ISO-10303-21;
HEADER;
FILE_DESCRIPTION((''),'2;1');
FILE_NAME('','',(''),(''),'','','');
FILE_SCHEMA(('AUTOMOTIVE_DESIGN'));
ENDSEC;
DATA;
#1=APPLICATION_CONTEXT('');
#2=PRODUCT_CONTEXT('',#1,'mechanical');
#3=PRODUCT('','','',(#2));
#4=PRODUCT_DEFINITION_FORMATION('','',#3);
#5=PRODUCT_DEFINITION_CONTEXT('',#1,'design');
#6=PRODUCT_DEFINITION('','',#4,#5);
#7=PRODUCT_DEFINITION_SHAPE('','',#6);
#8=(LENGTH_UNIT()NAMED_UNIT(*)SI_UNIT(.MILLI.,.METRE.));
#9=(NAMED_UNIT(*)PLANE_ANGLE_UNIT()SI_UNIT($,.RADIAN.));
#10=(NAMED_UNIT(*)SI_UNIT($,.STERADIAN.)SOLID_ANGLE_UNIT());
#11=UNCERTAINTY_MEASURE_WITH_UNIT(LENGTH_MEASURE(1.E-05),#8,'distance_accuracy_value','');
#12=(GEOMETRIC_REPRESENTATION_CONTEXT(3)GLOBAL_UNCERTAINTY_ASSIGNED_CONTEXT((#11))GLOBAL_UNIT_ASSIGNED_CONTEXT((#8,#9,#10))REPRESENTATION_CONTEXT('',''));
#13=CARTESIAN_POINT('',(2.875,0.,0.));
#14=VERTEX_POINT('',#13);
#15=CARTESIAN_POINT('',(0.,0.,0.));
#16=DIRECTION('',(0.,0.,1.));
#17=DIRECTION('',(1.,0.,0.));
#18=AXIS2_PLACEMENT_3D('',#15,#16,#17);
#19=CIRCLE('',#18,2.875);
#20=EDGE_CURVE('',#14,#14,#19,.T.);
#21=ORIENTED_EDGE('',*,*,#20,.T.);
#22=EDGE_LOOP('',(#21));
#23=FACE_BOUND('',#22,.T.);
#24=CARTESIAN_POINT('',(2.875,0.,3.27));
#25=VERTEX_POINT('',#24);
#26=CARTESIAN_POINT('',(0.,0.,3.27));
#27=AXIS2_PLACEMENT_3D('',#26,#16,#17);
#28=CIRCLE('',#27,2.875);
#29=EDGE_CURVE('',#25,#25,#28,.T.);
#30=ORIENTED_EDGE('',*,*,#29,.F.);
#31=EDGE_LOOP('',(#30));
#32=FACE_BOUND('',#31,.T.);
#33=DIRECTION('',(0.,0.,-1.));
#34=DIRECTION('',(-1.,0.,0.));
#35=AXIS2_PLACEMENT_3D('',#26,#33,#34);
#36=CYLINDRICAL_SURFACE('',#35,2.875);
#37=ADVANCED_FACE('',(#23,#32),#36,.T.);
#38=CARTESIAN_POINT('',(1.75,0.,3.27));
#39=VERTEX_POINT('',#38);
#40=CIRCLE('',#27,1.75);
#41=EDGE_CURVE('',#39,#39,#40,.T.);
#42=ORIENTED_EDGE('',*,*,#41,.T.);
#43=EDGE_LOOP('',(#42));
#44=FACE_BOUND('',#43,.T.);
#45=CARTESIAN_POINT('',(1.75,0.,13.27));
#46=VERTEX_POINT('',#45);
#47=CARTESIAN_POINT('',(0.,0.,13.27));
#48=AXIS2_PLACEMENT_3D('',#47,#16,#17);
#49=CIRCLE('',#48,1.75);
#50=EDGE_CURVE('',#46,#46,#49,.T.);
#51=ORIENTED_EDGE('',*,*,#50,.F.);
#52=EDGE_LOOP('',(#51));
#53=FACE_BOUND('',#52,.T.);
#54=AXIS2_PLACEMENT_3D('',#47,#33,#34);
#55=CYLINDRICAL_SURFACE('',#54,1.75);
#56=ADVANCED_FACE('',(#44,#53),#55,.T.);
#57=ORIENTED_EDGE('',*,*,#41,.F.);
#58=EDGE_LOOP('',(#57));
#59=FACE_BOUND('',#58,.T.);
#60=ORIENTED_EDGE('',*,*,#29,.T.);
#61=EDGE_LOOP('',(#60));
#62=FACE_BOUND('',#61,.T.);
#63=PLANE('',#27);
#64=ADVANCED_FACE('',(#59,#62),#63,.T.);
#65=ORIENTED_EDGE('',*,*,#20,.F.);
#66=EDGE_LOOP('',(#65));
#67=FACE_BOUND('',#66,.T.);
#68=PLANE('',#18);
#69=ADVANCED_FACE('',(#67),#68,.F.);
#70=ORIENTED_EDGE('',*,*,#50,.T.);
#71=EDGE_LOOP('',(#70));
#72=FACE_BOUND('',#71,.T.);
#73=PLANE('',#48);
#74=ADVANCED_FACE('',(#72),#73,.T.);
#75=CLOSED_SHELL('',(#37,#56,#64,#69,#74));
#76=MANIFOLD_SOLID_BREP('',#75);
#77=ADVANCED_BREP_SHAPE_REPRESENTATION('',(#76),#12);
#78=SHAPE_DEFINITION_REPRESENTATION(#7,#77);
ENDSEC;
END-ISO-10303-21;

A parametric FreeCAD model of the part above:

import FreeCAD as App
import Part
import Sketcher
Q = App.Units.Quantity

doc = App.newDocument("Part")
params = doc.addObject("Spreadsheet::Sheet", "Params")
for row, (alias, value) in enumerate([
    ("sketch1_diameter", "5.75 mm"),
    ("pad1_length", "3.27 mm"),
    ("sketch2_diameter", "3.5 mm"),
    ("pad2_length", "10 mm"),
], start=1):
    params.set(f"A{row}", alias)
    params.set(f"B{row}", "=" + value)
    params.setAlias(f"B{row}", alias)

body = doc.addObject("PartDesign::Body", "Body")

# Sketch on XY plane
sketch1 = body.newObject("Sketcher::SketchObject", "Sketch")
sketch1.AttachmentSupport = (doc.getObject("XY_Plane"), [""])
sketch1.MapMode = "FlatFace"
sketch1.addGeometry(Part.Circle(App.Vector(0, 0, 0), App.Vector(0, 0, 1), 2.9), False)
sketch1.addConstraint([
    Sketcher.Constraint("Coincident", 0, 3, -1, 1),
    Sketcher.Constraint("Diameter", 0, Q("5.75 mm")),
])
sketch1.setExpression("Constraints[1]", "Params.sketch1_diameter")
pad1 = body.newObject("PartDesign::Pad", "Pad")
pad1.Profile = sketch1
pad1.setExpression("Length", "Params.pad1_length")

# Sketch on XY plane
sketch2 = body.newObject("Sketcher::SketchObject", "Sketch001")
sketch2.AttachmentSupport = (doc.getObject("XY_Plane"), [""])
sketch2.MapMode = "FlatFace"
sketch2.AttachmentOffset = App.Placement(App.Vector(0, 0, 3.27), App.Rotation())
sketch2.addGeometry(Part.Circle(App.Vector(0, 0, 0), App.Vector(0, 0, 1), 1.8), False)
sketch2.addConstraint([
    Sketcher.Constraint("Coincident", 0, 3, -1, 1),
    Sketcher.Constraint("Diameter", 0, Q("3.5 mm")),
])
sketch2.setExpression("Constraints[1]", "Params.sketch2_diameter")
pad2 = body.newObject("PartDesign::Pad", "Pad001")
pad2.Profile = sketch2
pad2.setExpression("Length", "Params.pad2_length")

doc.recompute()
